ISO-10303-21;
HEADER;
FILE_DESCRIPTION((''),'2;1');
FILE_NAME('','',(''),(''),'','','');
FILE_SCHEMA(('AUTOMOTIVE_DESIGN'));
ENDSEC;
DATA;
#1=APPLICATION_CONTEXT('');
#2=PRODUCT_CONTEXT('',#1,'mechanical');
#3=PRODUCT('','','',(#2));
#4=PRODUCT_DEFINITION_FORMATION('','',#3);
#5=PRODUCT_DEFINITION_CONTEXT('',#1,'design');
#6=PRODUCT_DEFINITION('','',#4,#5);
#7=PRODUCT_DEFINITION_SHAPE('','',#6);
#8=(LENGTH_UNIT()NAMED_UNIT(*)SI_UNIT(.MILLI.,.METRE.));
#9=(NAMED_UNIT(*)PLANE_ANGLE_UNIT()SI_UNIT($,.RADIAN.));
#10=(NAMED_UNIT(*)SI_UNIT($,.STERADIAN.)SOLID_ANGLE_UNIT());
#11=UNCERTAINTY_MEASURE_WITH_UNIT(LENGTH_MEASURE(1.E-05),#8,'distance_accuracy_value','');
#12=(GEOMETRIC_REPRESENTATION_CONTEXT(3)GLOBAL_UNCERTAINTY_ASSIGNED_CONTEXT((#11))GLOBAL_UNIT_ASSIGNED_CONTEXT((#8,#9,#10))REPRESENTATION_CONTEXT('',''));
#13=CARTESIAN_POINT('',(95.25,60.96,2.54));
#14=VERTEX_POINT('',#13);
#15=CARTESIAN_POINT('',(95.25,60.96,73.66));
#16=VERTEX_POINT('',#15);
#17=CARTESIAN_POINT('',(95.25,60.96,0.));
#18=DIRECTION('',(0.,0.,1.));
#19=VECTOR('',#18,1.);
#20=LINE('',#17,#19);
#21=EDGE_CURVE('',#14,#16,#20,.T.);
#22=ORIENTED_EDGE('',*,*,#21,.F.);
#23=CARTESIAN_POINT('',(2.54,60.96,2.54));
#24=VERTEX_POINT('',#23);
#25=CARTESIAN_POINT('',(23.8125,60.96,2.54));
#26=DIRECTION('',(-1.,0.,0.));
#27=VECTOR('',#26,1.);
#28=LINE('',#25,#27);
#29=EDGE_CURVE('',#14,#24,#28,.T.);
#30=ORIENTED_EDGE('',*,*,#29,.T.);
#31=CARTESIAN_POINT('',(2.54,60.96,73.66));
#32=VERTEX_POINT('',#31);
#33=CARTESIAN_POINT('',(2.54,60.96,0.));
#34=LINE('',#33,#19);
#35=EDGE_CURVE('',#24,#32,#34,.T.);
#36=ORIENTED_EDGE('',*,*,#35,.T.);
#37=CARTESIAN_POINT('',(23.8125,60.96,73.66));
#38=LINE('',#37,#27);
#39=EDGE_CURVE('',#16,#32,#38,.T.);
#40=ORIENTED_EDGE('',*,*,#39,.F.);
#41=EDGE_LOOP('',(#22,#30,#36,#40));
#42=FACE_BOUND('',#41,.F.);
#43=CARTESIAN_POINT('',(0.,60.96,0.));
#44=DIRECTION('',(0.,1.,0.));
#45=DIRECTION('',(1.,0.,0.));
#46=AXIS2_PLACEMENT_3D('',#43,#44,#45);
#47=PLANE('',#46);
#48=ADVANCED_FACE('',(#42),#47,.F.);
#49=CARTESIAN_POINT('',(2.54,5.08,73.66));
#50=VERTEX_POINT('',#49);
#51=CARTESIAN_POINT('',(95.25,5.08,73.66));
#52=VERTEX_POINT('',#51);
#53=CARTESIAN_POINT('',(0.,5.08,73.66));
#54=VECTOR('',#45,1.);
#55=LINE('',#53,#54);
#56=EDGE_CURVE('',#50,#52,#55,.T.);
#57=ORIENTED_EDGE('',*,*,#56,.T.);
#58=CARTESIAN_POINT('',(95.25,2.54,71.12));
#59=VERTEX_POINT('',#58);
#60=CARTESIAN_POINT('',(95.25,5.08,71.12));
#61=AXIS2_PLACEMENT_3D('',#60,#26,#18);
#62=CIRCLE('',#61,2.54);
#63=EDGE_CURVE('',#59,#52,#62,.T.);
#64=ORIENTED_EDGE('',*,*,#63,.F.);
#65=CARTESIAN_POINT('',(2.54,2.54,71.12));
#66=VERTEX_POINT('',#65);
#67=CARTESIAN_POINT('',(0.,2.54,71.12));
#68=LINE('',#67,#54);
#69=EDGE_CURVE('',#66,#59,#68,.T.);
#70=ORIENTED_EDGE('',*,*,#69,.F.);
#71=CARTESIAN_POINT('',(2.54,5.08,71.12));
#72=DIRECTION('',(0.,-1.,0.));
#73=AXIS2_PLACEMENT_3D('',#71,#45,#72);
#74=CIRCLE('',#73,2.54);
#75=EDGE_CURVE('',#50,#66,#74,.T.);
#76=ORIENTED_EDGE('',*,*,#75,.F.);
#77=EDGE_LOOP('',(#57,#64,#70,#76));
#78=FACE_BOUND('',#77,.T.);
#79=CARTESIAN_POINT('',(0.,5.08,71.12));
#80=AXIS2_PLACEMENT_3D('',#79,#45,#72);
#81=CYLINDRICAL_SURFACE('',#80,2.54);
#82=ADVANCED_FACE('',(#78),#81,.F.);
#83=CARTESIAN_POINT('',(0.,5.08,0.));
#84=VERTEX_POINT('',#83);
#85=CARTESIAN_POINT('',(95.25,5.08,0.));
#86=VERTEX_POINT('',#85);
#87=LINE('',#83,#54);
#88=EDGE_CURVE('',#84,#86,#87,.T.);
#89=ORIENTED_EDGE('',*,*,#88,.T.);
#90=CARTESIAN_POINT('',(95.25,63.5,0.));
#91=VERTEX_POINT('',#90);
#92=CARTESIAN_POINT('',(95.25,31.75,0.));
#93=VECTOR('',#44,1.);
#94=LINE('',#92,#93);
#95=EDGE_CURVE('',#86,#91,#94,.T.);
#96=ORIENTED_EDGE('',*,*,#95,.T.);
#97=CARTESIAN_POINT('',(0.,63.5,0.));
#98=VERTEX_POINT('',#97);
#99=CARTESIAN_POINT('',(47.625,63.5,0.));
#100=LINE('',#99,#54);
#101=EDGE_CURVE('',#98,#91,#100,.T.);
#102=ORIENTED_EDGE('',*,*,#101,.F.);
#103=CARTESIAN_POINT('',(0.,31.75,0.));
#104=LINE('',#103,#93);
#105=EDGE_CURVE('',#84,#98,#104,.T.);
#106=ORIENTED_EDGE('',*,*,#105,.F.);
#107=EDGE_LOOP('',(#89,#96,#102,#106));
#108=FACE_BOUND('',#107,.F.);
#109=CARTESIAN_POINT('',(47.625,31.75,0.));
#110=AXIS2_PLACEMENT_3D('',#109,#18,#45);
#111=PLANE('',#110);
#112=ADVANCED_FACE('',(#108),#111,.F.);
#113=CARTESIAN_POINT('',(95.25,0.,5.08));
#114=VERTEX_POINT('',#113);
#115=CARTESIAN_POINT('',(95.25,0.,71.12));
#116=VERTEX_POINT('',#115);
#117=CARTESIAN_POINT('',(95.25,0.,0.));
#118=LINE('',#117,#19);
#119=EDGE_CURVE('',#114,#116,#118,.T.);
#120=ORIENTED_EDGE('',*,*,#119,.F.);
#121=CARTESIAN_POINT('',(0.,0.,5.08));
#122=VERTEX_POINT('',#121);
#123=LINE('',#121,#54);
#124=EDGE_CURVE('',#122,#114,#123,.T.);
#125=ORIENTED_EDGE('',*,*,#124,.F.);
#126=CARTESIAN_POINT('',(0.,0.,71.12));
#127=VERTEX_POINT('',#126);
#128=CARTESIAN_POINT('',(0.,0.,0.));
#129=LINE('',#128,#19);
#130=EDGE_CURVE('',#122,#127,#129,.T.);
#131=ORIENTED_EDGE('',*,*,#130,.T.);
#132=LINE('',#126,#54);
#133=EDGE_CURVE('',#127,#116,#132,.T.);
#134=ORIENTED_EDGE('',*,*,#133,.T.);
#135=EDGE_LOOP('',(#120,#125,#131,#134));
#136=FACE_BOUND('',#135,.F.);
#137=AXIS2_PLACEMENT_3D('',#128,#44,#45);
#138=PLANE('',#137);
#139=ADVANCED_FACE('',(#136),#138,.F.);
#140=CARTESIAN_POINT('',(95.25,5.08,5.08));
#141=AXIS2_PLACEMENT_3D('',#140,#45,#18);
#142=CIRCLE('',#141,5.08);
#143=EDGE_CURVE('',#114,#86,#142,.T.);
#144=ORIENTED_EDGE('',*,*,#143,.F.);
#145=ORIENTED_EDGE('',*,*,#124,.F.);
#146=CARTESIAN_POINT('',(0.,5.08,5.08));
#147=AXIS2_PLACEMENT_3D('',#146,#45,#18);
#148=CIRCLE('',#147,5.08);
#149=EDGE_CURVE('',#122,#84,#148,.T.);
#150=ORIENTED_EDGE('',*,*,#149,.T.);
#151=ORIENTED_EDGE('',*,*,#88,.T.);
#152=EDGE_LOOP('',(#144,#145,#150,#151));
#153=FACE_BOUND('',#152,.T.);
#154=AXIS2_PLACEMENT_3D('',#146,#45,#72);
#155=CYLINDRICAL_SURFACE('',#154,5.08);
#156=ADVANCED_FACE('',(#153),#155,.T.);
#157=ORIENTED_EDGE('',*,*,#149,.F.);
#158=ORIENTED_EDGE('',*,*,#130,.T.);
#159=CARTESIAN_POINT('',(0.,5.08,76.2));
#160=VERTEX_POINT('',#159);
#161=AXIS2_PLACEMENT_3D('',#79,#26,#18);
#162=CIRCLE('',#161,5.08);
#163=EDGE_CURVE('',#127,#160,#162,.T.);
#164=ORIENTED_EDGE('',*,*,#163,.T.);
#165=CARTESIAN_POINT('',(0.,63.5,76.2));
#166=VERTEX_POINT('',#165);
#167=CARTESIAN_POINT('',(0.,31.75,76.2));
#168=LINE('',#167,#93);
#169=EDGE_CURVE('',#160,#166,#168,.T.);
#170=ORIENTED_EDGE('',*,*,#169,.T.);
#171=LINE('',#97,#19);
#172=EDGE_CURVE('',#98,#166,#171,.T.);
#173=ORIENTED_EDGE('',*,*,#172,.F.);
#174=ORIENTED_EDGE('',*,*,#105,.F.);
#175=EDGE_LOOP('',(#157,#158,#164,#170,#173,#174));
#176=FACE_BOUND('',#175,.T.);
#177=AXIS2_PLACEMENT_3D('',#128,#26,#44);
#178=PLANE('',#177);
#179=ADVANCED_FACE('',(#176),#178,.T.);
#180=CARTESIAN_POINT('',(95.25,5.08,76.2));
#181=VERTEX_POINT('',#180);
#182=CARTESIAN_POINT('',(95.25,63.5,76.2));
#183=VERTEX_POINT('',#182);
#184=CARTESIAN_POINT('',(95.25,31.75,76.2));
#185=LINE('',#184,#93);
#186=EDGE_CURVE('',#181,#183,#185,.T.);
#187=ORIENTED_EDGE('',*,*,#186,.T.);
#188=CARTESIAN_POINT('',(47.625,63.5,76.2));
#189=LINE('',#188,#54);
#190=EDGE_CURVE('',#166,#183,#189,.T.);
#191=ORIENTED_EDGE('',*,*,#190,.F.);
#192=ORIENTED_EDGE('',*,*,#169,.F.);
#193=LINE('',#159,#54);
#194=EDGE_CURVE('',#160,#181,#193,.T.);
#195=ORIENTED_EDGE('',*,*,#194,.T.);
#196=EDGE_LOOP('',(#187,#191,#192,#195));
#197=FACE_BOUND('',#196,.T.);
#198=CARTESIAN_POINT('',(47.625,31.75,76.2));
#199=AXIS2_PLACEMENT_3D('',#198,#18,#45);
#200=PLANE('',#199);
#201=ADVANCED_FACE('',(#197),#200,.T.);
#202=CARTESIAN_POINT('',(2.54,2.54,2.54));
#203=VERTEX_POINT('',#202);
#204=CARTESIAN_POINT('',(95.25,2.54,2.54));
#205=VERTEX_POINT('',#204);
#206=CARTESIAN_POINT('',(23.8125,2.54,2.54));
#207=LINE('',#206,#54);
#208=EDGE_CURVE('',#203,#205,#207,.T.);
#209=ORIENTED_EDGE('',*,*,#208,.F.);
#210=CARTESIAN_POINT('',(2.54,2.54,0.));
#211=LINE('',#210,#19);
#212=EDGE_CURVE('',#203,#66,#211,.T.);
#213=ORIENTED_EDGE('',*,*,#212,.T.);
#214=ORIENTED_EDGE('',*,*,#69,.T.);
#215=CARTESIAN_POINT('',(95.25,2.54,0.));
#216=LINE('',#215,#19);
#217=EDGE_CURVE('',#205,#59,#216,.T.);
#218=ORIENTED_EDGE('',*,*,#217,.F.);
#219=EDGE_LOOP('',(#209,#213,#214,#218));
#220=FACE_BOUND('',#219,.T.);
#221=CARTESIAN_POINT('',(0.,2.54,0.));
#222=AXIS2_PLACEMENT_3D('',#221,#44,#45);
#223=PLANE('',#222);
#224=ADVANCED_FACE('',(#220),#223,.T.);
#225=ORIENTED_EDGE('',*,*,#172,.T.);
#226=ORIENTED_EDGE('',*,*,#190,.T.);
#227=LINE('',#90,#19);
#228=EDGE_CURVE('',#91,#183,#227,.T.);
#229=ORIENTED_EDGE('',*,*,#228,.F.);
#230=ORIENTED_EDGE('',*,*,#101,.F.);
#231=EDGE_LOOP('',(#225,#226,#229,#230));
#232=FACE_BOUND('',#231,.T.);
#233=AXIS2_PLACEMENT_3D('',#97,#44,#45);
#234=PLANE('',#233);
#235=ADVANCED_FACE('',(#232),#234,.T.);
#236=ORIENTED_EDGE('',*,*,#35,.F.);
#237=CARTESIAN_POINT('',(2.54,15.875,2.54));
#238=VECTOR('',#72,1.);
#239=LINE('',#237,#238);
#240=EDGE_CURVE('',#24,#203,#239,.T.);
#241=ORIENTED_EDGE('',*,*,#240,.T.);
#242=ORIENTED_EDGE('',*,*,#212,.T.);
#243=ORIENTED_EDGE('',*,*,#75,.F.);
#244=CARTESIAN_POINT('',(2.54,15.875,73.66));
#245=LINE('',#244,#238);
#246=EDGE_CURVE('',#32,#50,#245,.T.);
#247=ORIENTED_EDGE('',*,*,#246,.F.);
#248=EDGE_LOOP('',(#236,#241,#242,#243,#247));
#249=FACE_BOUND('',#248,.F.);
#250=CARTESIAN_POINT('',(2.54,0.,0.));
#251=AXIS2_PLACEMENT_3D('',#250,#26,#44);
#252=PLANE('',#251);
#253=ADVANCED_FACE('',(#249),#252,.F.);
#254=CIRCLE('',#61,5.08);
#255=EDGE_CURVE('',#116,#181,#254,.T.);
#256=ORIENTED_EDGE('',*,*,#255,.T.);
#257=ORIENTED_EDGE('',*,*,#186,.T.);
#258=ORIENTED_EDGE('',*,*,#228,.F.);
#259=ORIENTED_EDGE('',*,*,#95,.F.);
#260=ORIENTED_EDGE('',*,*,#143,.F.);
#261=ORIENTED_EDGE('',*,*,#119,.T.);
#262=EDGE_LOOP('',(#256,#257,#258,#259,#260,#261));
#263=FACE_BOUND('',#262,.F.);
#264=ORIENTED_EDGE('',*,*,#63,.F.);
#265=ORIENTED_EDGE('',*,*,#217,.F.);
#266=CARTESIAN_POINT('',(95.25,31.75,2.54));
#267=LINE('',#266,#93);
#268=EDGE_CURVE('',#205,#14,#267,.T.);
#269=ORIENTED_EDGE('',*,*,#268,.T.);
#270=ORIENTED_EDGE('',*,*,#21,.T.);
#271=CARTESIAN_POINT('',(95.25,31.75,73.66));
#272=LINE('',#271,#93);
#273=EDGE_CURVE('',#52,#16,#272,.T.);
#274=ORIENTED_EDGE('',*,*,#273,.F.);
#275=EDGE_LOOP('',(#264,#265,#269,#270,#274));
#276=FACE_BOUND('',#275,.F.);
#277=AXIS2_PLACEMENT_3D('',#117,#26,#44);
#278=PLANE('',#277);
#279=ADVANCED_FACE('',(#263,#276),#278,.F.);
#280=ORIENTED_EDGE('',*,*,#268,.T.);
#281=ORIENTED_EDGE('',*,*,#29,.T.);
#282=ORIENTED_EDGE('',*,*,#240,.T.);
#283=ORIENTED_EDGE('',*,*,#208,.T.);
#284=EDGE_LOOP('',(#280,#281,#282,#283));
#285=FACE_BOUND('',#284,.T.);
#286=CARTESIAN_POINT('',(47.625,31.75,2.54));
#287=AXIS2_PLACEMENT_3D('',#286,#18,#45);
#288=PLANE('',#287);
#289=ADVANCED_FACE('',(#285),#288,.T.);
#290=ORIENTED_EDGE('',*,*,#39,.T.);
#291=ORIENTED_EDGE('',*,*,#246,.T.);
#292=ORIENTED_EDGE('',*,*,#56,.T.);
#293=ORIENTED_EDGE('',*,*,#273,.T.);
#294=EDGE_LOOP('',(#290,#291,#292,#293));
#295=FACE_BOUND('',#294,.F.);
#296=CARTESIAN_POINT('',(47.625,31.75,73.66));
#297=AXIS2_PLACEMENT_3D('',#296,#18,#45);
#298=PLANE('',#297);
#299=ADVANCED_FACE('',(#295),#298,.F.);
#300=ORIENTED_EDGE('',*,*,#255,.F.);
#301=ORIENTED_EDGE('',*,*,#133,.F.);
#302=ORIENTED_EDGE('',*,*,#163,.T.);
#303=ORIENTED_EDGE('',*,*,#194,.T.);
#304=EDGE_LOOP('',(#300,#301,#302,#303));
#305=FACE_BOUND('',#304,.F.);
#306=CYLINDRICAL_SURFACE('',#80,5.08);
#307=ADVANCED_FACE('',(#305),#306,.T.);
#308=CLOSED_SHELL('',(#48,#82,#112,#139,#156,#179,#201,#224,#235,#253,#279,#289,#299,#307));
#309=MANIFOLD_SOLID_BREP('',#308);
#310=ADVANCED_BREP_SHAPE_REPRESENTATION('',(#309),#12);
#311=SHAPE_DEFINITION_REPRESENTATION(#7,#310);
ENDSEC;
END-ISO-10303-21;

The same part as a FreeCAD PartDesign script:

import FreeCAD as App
import Part
import Sketcher
Q = App.Units.Quantity


def edges_at(feature, points):
    """Names of the edges that pass closest to the given points."""
    edges = feature.Shape.Edges
    near = lambda p: min(range(len(edges)), key=lambda i: edges[i].distToShape(Part.Vertex(*p))[0])
    return sorted({f"Edge{near(p) + 1}" for p in points})


def faces_at(feature, points):
    """Names of the faces that lie closest to the given points."""
    faces = feature.Shape.Faces
    near = lambda p: min(range(len(faces)), key=lambda i: faces[i].distToShape(Part.Vertex(*p))[0])
    return sorted({f"Face{near(p) + 1}" for p in points})

doc = App.newDocument("Part")
body = doc.addObject("PartDesign::Body", "Body")

sketch1 = body.newObject("Sketcher::SketchObject", "Sketch")
sketch1.AttachmentSupport = (doc.getObject("XY_Plane"), [""])
sketch1.MapMode = "FlatFace"
sketch1.addGeometry([
    Part.LineSegment(App.Vector(0, 64, 0), App.Vector(0, 0, 0)),
    Part.LineSegment(App.Vector(0, 0, 0), App.Vector(95, 0, 0)),
    Part.LineSegment(App.Vector(95, 0, 0), App.Vector(95, 64, 0)),
    Part.LineSegment(App.Vector(95, 64, 0), App.Vector(0, 64, 0)),
], False)
sketch1.addConstraint([
    Sketcher.Constraint("Coincident", 0, 2, 1, 1),
    Sketcher.Constraint("Coincident", 1, 2, 2, 1),
    Sketcher.Constraint("Coincident", 2, 2, 3, 1),
    Sketcher.Constraint("Coincident", 3, 2, 0, 1),
    Sketcher.Constraint("Vertical", 0),
    Sketcher.Constraint("Horizontal", 1),
    Sketcher.Constraint("Vertical", 2),
    Sketcher.Constraint("Horizontal", 3),
    Sketcher.Constraint("Coincident", 0, 2, -1, 1),
    Sketcher.Constraint("DistanceY", 0, 2, 0, 1, Q("2.5 in")),
    Sketcher.Constraint("DistanceX", 1, 1, 1, 2, Q("3.75 in")),
])
pad1 = body.newObject("PartDesign::Pad", "Pad")
pad1.Profile = sketch1
pad1.Length = Q("3 in")
doc.recompute()

fillet = body.newObject("PartDesign::Fillet", "Fillet")
fillet.Base = (pad1, edges_at(pad1, [(47.625, 0, 76.2)]))
fillet.Radius = Q("0.2 in")
doc.recompute()

thickness = body.newObject("PartDesign::Thickness", "Thickness")
thickness.Base = (fillet, faces_at(fillet, [(95.25, 31.75, 38.1)]))
thickness.Value = Q("0.1 in")
thickness.Reversed = True
thickness.Join = "Arc"
doc.recompute()

fillet2 = body.newObject("PartDesign::Fillet", "Fillet001")
fillet2.Base = (thickness, edges_at(thickness, [(47.625, 0, 0)]))
fillet2.Radius = Q("0.2 in")

doc.recompute()
